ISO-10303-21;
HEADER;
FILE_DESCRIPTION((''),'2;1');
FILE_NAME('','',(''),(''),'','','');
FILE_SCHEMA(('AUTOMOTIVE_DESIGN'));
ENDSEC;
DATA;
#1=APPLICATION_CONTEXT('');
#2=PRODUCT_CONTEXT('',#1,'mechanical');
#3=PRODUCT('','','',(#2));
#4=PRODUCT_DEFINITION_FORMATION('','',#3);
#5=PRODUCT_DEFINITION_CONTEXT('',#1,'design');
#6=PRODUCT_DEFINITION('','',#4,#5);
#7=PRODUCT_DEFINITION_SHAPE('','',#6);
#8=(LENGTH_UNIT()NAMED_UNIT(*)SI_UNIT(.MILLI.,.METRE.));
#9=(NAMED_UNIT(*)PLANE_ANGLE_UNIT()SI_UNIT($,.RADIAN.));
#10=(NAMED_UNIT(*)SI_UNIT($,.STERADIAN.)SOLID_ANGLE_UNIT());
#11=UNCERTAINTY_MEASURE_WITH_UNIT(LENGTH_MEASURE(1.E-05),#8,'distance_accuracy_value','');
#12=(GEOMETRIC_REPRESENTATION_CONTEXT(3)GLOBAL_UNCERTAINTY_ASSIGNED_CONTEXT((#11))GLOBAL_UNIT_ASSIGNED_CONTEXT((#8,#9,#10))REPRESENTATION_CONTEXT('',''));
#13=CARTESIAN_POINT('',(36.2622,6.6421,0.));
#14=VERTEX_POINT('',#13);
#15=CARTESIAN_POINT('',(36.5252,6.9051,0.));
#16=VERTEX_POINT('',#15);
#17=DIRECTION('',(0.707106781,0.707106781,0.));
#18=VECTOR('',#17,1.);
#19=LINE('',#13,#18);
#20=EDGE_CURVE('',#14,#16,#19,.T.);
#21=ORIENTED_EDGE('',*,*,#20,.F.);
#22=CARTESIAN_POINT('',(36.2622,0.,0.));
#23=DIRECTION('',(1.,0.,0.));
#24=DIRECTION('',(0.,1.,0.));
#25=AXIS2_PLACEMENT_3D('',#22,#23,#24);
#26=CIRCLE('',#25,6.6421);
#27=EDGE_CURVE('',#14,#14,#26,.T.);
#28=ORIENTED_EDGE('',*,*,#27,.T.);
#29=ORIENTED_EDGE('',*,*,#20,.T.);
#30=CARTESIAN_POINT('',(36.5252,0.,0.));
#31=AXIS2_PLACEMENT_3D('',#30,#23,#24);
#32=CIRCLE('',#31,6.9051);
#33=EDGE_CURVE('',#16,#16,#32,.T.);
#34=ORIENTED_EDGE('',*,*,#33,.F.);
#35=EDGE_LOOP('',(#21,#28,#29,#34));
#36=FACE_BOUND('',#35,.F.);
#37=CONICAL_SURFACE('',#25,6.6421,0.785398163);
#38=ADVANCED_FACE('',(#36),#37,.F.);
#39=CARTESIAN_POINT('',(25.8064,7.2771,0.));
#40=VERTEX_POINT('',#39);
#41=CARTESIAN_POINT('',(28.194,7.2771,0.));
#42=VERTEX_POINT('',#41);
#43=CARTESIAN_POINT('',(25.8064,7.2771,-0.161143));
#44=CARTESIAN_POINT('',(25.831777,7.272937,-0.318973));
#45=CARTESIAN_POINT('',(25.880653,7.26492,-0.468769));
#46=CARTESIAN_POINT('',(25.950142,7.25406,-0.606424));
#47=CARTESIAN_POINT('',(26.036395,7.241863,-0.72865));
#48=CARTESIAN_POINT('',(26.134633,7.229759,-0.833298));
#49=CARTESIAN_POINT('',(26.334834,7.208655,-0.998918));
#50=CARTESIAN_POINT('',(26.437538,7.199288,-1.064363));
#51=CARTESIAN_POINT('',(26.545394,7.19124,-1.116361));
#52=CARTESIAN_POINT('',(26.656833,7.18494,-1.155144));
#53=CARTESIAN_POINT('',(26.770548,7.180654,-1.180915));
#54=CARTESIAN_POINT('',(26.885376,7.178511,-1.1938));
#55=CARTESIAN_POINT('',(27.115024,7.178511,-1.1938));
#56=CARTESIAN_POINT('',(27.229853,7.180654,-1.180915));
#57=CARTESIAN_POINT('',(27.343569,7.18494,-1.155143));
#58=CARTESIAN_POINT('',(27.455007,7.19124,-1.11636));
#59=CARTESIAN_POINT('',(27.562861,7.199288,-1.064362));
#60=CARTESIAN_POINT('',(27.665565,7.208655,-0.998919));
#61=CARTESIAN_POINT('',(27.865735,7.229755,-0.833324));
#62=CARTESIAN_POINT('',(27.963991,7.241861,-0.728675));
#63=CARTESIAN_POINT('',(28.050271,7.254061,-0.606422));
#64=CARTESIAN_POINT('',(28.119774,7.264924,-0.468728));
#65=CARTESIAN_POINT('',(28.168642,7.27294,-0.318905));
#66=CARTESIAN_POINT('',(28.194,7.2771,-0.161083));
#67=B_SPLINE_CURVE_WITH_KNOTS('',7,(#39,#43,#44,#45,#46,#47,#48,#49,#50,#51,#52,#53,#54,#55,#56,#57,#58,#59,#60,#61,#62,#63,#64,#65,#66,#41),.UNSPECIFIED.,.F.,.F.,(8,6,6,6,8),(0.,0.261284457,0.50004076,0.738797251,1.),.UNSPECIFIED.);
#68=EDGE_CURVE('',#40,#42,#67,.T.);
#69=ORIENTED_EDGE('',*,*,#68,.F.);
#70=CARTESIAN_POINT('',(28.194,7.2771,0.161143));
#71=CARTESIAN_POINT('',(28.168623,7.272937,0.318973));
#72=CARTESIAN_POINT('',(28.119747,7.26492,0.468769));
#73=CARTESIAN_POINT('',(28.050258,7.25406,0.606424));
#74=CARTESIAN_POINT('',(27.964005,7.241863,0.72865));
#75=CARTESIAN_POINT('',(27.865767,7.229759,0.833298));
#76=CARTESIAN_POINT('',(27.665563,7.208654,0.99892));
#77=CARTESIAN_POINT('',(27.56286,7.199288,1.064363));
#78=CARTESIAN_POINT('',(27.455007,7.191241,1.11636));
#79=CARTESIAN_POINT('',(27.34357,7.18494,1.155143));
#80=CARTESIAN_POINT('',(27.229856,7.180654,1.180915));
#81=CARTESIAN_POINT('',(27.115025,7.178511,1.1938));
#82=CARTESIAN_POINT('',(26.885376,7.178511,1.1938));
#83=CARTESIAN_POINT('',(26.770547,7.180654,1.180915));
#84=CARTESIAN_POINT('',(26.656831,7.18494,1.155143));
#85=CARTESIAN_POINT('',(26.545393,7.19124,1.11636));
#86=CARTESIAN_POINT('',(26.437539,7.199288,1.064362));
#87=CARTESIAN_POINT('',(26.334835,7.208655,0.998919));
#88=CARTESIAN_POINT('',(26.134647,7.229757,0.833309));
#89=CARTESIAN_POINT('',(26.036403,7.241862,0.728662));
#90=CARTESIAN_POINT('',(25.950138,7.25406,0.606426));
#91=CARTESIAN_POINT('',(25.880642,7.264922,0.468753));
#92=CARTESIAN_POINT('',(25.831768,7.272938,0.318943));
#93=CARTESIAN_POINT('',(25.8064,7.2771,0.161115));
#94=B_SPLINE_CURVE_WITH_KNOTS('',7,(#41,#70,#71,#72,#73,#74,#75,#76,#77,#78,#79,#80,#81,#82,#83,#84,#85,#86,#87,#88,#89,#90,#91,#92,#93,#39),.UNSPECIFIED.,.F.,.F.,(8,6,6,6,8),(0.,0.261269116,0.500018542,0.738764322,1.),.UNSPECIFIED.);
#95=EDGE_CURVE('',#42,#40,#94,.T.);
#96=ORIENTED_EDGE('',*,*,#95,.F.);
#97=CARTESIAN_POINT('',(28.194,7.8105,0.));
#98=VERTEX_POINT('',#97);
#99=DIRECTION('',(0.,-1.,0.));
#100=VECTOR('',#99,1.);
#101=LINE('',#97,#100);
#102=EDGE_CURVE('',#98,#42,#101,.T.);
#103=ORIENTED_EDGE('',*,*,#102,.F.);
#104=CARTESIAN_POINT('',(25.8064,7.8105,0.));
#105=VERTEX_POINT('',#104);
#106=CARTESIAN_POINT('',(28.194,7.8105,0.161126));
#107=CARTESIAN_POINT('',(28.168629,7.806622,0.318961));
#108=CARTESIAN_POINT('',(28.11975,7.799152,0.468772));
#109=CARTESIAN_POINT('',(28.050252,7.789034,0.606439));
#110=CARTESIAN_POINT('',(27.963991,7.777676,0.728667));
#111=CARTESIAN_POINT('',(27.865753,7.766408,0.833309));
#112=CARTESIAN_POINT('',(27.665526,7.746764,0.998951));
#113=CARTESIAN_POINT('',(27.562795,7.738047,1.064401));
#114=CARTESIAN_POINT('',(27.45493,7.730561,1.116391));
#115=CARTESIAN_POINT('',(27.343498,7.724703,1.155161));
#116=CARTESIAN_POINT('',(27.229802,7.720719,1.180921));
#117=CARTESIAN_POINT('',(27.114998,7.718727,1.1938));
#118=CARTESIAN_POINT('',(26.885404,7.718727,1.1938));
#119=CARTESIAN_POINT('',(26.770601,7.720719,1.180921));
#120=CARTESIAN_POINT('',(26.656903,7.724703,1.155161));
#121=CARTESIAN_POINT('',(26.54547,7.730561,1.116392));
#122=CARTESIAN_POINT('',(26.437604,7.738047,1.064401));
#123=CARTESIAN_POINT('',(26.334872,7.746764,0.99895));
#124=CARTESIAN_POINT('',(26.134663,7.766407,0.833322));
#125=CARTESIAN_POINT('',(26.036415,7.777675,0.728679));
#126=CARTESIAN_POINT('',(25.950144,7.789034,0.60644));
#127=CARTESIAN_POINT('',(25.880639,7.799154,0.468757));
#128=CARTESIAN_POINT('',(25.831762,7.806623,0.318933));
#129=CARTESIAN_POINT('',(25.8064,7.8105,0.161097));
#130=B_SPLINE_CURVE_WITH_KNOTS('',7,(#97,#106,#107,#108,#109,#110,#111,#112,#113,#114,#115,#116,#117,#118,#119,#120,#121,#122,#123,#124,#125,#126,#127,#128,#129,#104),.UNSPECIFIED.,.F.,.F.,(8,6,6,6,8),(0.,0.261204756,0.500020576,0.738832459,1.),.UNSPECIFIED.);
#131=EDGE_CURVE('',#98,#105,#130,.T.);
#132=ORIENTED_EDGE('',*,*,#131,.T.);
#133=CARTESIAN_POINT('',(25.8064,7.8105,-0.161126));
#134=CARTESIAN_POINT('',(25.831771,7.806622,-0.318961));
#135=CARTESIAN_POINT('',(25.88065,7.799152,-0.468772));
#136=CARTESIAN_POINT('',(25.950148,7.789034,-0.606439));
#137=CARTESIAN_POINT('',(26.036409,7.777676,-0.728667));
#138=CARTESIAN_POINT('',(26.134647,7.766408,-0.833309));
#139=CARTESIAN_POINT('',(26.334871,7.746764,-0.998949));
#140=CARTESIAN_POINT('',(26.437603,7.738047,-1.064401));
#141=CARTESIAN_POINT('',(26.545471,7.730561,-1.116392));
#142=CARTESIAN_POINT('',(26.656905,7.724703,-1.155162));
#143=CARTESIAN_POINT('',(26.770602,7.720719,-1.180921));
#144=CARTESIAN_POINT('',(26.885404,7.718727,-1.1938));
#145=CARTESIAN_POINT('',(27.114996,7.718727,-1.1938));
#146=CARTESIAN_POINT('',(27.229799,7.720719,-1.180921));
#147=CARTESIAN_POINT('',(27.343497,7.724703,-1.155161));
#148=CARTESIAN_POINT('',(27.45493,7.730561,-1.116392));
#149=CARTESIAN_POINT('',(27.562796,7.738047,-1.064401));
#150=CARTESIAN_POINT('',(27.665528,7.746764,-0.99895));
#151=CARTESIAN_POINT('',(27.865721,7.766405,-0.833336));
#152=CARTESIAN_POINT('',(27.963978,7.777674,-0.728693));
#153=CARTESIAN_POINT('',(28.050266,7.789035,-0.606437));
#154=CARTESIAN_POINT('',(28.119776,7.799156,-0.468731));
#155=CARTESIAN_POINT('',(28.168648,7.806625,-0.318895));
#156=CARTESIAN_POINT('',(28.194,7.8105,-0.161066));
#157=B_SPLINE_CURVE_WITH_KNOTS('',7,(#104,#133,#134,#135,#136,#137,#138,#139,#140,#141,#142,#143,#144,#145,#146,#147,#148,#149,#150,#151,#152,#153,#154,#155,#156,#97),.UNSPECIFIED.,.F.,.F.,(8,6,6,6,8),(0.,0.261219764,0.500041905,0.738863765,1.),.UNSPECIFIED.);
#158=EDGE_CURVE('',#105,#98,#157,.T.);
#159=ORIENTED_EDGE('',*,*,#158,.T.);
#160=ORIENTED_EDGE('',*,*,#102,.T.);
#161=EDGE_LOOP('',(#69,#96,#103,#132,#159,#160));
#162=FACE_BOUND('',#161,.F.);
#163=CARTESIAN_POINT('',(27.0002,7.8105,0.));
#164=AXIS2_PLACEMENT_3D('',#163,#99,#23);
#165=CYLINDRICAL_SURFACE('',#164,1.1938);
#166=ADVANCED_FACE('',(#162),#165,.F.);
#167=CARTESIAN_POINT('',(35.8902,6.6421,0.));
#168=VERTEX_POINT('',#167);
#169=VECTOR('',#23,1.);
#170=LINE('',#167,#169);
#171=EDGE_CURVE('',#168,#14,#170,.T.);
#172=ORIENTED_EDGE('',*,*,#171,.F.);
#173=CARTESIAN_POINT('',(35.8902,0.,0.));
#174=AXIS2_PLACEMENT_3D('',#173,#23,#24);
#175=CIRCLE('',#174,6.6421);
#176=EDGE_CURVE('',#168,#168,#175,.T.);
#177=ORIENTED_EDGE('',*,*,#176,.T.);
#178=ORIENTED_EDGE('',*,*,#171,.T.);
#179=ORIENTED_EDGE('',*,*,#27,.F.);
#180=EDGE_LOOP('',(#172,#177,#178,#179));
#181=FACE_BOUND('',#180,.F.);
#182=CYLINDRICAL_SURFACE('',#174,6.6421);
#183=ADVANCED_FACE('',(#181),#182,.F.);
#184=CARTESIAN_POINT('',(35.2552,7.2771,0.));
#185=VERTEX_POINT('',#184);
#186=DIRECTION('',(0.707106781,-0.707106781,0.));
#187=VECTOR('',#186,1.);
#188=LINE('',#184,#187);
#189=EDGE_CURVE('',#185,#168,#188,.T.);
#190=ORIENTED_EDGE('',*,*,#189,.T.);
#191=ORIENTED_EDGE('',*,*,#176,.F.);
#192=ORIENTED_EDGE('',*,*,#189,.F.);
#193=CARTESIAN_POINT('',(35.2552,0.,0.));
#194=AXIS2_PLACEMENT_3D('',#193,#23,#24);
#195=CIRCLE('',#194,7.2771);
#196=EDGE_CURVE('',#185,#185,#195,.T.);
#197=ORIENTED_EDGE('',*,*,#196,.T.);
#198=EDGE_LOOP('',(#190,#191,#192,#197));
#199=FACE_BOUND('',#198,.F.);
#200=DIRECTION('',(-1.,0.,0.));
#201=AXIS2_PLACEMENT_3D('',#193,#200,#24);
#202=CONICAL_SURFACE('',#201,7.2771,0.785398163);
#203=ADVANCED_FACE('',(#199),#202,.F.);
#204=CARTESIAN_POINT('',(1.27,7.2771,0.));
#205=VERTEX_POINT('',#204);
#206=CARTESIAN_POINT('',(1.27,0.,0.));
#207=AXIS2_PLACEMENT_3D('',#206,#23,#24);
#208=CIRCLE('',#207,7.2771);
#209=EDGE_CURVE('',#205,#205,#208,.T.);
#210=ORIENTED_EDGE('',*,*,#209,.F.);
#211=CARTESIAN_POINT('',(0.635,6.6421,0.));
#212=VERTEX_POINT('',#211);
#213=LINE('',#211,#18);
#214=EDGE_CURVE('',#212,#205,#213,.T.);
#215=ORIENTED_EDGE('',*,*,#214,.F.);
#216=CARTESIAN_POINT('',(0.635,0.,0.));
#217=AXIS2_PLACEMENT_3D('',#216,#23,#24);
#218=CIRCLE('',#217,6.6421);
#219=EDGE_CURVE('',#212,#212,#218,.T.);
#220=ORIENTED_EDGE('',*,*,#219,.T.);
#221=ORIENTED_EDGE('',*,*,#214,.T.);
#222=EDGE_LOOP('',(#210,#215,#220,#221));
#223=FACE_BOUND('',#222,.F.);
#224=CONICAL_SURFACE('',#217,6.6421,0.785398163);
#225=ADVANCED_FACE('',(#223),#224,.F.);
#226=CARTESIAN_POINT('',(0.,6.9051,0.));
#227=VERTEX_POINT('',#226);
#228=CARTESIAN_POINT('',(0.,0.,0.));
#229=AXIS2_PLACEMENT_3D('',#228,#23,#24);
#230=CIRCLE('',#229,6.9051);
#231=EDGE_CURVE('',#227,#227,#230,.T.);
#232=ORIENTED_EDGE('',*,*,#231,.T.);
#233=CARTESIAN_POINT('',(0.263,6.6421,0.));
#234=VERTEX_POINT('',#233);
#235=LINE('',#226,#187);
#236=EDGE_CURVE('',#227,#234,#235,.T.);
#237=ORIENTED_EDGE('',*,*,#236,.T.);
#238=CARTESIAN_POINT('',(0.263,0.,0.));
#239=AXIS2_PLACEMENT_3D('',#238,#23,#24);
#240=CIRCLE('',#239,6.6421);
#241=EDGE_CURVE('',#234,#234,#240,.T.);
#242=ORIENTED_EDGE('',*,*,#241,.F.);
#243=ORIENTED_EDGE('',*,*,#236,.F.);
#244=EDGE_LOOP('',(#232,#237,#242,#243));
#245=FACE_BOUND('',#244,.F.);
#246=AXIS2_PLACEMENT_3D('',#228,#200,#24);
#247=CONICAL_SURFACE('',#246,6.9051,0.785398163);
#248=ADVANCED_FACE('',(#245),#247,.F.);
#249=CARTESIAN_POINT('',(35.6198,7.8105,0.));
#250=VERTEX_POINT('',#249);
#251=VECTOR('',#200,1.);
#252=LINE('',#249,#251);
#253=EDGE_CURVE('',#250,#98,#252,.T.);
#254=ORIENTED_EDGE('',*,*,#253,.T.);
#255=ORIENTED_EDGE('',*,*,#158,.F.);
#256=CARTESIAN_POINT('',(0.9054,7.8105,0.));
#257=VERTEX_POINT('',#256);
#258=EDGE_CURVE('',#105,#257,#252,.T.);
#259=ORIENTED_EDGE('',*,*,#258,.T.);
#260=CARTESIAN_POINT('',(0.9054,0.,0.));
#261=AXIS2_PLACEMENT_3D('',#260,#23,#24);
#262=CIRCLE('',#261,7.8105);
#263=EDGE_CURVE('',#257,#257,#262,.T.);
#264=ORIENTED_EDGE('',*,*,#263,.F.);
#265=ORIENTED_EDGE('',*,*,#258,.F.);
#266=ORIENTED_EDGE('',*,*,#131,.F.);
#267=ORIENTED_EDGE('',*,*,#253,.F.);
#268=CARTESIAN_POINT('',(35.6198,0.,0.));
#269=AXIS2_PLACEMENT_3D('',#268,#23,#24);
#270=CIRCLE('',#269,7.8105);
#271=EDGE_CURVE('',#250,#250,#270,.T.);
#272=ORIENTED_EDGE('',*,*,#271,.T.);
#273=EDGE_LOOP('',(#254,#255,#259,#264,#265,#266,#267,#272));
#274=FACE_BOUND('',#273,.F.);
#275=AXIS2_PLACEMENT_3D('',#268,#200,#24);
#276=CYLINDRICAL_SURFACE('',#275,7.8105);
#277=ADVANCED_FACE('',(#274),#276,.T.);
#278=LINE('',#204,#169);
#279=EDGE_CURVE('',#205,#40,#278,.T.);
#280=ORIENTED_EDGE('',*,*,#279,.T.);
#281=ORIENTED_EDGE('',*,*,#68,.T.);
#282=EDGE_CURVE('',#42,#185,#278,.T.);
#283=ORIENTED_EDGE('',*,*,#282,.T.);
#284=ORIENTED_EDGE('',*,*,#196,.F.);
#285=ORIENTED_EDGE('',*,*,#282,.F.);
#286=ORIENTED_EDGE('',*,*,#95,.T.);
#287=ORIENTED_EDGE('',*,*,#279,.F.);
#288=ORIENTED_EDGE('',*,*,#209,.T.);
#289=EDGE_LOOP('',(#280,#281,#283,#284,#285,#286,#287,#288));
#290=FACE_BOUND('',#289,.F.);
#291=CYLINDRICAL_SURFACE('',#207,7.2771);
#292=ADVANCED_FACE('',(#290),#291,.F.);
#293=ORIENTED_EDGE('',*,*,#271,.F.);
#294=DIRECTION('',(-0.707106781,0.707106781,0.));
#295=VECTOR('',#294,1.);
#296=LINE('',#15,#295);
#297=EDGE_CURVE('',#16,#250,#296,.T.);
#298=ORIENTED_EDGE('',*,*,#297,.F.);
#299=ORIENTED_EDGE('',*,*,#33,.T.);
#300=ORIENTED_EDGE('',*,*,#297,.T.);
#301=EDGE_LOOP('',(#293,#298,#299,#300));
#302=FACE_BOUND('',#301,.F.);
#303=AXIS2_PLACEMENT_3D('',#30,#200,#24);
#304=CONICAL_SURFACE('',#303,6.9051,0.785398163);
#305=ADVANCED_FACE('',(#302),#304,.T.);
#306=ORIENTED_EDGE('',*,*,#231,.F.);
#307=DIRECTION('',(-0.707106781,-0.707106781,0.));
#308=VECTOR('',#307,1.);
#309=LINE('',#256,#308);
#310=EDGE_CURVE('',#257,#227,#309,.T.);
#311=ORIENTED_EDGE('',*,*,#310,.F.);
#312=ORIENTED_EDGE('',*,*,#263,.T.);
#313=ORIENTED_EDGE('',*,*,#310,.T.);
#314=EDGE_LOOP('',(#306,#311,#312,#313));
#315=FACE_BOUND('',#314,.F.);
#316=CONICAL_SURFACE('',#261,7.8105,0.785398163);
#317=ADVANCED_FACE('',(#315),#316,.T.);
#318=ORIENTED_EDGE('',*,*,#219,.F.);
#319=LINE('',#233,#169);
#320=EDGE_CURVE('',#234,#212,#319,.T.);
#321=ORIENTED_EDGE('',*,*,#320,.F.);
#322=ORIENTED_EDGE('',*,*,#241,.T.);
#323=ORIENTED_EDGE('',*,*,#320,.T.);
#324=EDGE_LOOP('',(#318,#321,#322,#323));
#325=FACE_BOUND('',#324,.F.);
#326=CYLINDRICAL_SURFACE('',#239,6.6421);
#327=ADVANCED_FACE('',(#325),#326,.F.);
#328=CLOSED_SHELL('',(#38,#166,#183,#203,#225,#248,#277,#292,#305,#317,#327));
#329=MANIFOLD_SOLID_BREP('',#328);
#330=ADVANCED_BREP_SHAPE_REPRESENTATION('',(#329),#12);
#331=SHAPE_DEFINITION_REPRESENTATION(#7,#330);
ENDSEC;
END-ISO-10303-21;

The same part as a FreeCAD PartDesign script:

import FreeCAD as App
import Part
import Sketcher
Q = App.Units.Quantity


def add_polygon(sketch, points):
    """Adds a closed chain of lines whose ends are joined by coincident constraints."""
    first, n = sketch.GeometryCount, len(points)
    for a, b in zip(points, points[1:] + points[:1]):
        sketch.addGeometry(Part.LineSegment(App.Vector(*a, 0), App.Vector(*b, 0)), False)
    for i in range(n):
        sketch.addConstraint(Sketcher.Constraint("Coincident", first + i, 2, first + (i + 1) % n, 1))

doc = App.newDocument("Part")
params = doc.addObject("Spreadsheet::Sheet", "Params")
for row, (alias, value) in enumerate([
    ("sketch1_width", "1.338 in"),
    ("revolution_angle", "360 deg"),
    ("sketch2_width", "0.047 in"),
    ("groove_angle", "360 deg"),
], start=1):
    params.set(f"A{row}", alias)
    params.set(f"B{row}", "=" + value)
    params.setAlias(f"B{row}", alias)

body = doc.addObject("PartDesign::Body", "Body")

# Sketch on XY plane
sketch1 = body.newObject("Sketcher::SketchObject", "Sketch")
sketch1.AttachmentSupport = (doc.getObject("XY_Plane"), [""])
sketch1.MapMode = "FlatFace"
add_polygon(sketch1, [(0.9054, 7.8105), (0, 6.9051), (0.263, 6.6421), (0.635, 6.6421), (1.27, 7.2771), (35.2552, 7.2771), (35.8902, 6.6421), (36.2622, 6.6421), (36.5252, 6.9051), (35.6198, 7.8105)])  # lines 0-9
sketch1.addConstraint([
    Sketcher.Constraint("Horizontal", 2),
    Sketcher.Constraint("Horizontal", 4),
    Sketcher.Constraint("Horizontal", 6),
    Sketcher.Constraint("Horizontal", 9),
    Sketcher.Constraint("PointOnObject", 0, 2, -2),
    Sketcher.Constraint("Perpendicular", 0, 1),
    Sketcher.Constraint("Perpendicular", 1, 3),
    Sketcher.Constraint("Perpendicular", 3, 5),
    Sketcher.Constraint("Perpendicular", 5, 7),
    Sketcher.Constraint("Perpendicular", 7, 8),
    Sketcher.Constraint("Horizontal", 2, 2, 5, 2),
    Sketcher.Constraint("Horizontal", 0, 2, 7, 2),
    Sketcher.Constraint("Equal", 2, 6),
    Sketcher.Constraint("Equal", 3, 5),
    Sketcher.Constraint("DistanceX", 4, 1, 4, 2, Q("1.338 in")),
    Sketcher.Constraint("DistanceX", -1, 1, 3, 2, Q("0.05 in")),
    Sketcher.Constraint("DistanceX", 9, 2, 9, 1, Q("1.3667 in")),
    Sketcher.Constraint("DistanceX", -1, 1, 2, 2, Q("0.025 in")),
    Sketcher.Constraint("DistanceY", 4, 2, 8, 2, Q("0.021 in")),
    Sketcher.Constraint("DistanceY", -1, 1, 1, 2, Q("0.2615 in")),
])
sketch1.setExpression("Constraints[24]", "Params.sketch1_width")
revolution = body.newObject("PartDesign::Revolution", "Revolution")
revolution.Profile = sketch1
revolution.ReferenceAxis = (sketch1, ["H_Axis"])
revolution.setExpression("Angle", "Params.revolution_angle")

# Sketch on XY plane
sketch2 = body.newObject("Sketcher::SketchObject", "Sketch001")
sketch2.AttachmentSupport = (doc.getObject("XY_Plane"), [""])
sketch2.MapMode = "FlatFace"
add_polygon(sketch2, [(27.0002, 7.8105), (27.0002, 0), (28.194, 0), (28.194, 7.8105)])  # lines 0-3
sketch2.addGeometry(Part.LineSegment(App.Vector(27.0002, 7.8105, 0), App.Vector(27.0002, 0, 0)), True)  # axis
sketch2.addConstraint([
    Sketcher.Constraint("Vertical", 0),
    Sketcher.Constraint("Horizontal", 1),
    Sketcher.Constraint("Vertical", 2),
    Sketcher.Constraint("Horizontal", 3),
    Sketcher.Constraint("Vertical", 4),
    Sketcher.Constraint("Coincident", 4, 1, 3, 2),
    Sketcher.Constraint("PointOnObject", 0, 2, -1),
    Sketcher.Constraint("PointOnObject", 4, 2, -1),
    Sketcher.Constraint("DistanceX", 1, 1, 1, 2, Q("0.047 in")),
    Sketcher.Constraint("DistanceX", -1, 1, 1, 2, Q("1.11 in")),
    Sketcher.Constraint("DistanceY", 0, 2, 0, 1, Q("0.3075 in")),
])
sketch2.setExpression("Constraints[12]", "Params.sketch2_width")
groove = body.newObject("PartDesign::Groove", "Groove")
groove.Profile = sketch2
groove.ReferenceAxis = (sketch2, ["Axis0"])
groove.setExpression("Angle", "Params.groove_angle")

doc.recompute()
